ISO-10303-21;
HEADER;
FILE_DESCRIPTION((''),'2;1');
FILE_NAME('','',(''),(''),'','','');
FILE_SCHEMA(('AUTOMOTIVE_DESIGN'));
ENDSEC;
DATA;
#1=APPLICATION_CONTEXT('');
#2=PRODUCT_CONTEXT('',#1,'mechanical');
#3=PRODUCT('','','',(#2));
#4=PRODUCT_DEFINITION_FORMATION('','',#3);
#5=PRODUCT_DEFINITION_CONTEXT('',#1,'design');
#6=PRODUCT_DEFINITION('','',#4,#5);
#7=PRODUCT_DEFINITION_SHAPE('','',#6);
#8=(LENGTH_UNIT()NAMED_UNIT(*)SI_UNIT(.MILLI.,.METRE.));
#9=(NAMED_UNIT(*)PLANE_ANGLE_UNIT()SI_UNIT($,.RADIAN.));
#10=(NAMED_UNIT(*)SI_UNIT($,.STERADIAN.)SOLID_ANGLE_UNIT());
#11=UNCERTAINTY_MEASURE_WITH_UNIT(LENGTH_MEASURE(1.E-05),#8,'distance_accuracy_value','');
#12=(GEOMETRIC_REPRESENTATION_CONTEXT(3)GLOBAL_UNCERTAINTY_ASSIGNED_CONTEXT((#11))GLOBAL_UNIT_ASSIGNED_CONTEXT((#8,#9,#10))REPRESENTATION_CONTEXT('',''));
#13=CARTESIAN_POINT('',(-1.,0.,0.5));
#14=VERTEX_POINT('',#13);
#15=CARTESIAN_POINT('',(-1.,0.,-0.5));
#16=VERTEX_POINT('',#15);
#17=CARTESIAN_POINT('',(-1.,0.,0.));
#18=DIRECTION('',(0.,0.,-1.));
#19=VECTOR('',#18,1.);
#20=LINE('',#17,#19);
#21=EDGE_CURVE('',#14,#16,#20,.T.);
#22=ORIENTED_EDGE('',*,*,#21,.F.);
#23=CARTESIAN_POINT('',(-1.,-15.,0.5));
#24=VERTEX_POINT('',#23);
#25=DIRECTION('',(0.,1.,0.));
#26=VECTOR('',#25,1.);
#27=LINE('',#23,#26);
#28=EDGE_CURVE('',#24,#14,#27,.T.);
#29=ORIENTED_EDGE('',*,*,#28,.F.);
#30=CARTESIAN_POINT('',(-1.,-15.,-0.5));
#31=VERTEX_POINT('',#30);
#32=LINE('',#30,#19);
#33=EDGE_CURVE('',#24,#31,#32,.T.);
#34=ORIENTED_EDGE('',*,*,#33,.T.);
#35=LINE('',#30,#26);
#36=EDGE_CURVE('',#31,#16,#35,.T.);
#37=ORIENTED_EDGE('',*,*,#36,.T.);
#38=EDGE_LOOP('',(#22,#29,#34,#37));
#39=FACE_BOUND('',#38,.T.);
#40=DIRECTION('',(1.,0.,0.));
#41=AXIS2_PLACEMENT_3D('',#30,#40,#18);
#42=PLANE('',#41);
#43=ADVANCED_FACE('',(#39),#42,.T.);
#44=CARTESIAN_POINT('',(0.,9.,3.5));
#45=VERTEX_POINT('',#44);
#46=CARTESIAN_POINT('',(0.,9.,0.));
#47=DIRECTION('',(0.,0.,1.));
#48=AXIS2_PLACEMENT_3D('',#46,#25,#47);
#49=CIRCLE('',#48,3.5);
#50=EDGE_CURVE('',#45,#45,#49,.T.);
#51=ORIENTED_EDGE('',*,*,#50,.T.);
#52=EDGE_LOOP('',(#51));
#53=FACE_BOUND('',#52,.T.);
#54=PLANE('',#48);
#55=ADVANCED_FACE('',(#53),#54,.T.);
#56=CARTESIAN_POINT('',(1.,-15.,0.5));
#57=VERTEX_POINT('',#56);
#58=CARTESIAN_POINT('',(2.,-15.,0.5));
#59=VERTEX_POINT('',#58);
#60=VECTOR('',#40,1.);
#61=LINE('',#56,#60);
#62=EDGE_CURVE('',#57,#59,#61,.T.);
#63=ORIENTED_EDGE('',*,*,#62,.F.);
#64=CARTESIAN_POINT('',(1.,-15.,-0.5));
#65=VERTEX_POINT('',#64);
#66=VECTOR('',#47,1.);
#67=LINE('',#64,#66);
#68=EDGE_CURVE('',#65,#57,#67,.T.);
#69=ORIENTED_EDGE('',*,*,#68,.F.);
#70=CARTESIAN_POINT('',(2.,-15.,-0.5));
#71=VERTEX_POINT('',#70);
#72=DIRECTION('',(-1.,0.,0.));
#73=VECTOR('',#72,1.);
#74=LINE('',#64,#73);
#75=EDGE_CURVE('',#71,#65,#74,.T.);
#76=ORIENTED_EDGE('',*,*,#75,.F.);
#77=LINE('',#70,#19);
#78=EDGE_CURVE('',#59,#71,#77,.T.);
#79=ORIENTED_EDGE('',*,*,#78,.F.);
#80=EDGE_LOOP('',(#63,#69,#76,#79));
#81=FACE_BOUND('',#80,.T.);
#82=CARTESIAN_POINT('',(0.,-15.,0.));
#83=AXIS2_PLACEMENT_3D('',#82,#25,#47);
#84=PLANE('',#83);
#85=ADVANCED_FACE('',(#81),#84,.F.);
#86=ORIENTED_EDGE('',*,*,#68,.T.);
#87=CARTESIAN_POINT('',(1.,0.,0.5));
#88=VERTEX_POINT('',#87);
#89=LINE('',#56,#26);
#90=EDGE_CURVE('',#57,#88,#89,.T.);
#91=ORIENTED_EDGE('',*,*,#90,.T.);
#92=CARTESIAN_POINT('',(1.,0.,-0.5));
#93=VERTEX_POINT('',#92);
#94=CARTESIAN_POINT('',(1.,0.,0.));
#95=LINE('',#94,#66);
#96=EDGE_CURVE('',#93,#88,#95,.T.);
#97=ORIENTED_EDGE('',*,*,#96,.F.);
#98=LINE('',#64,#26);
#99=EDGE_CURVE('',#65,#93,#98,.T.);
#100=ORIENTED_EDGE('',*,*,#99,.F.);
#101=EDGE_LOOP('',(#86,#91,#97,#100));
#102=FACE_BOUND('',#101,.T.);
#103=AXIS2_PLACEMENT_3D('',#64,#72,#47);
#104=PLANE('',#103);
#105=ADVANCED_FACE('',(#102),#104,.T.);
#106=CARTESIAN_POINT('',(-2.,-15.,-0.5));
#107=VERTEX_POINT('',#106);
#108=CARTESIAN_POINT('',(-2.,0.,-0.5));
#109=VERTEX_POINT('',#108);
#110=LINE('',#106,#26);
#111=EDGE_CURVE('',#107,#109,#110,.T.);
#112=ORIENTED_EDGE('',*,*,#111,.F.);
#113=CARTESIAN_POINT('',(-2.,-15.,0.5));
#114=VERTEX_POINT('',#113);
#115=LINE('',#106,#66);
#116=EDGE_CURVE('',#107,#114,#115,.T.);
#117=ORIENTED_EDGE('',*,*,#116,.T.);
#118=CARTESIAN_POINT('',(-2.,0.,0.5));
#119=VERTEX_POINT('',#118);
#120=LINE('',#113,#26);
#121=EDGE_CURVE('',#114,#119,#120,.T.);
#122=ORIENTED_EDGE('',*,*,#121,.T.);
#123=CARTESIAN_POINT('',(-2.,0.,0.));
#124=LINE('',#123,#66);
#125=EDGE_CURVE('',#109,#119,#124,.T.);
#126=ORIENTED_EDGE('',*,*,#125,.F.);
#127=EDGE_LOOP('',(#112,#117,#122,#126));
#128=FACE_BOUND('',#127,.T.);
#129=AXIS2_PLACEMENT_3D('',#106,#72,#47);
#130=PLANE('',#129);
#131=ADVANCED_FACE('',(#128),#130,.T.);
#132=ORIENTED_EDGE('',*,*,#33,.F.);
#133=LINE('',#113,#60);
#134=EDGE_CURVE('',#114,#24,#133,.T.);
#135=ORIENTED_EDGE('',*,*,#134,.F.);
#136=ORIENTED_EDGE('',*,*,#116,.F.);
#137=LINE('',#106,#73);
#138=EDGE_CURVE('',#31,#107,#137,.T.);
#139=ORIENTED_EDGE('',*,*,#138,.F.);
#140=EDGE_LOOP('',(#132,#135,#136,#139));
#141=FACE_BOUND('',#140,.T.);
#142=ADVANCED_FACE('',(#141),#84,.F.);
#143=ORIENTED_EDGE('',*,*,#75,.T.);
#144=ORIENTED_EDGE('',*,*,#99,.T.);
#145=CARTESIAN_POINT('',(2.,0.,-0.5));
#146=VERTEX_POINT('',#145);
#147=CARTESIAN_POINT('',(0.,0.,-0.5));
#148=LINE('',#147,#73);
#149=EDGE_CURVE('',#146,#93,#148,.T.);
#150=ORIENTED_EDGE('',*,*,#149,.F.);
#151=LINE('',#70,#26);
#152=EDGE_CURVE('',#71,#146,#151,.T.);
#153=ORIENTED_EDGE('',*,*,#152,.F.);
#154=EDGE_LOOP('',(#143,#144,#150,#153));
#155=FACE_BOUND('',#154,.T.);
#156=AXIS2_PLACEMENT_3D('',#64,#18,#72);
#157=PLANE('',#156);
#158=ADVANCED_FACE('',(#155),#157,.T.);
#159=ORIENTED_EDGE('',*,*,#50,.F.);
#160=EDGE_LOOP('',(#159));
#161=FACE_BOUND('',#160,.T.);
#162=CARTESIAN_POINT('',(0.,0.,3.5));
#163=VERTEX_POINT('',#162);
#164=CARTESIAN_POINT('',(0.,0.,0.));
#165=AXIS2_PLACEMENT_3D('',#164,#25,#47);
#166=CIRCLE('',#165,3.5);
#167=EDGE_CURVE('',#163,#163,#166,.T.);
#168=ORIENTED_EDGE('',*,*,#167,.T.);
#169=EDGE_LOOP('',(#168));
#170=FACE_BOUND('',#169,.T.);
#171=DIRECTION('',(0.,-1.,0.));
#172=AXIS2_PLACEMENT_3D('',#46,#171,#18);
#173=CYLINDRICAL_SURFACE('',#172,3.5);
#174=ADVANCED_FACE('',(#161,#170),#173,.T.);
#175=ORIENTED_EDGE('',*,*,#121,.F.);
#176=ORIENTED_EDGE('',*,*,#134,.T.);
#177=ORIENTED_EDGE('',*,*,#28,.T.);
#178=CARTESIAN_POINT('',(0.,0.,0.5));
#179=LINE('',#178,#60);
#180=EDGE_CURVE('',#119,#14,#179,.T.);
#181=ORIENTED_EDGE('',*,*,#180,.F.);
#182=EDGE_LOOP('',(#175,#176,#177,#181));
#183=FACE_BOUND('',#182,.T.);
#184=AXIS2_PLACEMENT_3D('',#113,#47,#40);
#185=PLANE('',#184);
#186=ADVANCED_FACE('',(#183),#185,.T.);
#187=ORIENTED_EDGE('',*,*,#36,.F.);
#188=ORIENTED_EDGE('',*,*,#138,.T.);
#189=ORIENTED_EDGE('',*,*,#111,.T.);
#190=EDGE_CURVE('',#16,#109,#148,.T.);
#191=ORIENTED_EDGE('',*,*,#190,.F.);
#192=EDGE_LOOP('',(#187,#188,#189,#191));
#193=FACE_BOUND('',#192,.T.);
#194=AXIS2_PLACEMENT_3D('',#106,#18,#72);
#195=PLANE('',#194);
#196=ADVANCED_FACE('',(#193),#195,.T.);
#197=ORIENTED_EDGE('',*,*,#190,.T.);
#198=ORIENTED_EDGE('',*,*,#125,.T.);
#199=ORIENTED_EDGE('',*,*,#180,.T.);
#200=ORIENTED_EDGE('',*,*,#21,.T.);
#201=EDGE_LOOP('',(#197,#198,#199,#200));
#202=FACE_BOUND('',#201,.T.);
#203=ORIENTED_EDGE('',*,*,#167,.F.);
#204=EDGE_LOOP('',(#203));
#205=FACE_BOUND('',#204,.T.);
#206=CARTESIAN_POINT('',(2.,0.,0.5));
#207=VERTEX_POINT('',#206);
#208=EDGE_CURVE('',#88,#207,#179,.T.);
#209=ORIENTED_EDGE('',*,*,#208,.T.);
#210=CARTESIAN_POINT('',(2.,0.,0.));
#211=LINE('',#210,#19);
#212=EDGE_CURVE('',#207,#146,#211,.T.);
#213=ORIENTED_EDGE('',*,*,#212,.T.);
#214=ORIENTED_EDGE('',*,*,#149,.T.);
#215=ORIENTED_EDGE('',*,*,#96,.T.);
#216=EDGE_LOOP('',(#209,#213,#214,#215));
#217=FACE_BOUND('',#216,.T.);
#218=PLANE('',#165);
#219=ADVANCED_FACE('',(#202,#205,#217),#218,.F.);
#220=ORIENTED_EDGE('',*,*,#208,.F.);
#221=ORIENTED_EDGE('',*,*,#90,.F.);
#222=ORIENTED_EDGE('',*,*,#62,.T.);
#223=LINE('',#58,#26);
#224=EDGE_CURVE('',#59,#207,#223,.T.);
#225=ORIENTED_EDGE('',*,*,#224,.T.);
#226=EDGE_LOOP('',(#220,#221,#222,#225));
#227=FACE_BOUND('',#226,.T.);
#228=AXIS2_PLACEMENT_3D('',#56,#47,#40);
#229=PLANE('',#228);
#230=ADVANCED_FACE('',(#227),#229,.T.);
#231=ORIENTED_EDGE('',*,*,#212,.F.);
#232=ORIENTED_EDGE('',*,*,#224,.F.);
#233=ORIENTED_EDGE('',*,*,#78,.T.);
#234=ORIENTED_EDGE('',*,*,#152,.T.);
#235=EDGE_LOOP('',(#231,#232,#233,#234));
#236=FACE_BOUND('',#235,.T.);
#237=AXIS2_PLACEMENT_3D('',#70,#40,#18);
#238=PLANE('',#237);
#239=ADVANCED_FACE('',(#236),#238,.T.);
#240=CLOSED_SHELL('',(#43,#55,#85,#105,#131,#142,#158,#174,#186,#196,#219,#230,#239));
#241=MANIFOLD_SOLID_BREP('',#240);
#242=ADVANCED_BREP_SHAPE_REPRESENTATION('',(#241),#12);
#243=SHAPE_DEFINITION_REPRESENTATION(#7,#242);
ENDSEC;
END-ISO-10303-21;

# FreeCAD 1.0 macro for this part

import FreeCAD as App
import Part
import Sketcher

V = App.Vector
Q = App.Units.Quantity

doc = App.newDocument("Part")
body = doc.addObject("PartDesign::Body", "Body")

# Sketch on XZ plane
sketch1 = body.newObject("Sketcher::SketchObject", "Sketch")
sketch1.AttachmentSupport = (doc.getObject("XZ_Plane"), [""])
sketch1.MapMode = "FlatFace"
sketch1.addGeometry(Part.Circle(V(0, 0, 0), V(0, 0, 1), 3.5), False)
sketch1.addConstraint(Sketcher.Constraint("Coincident", 0, 3, -1, 1))
sketch1.addConstraint(Sketcher.Constraint("Diameter", 0, Q("7 mm")))
pad1 = body.newObject("PartDesign::Pad", "Pad")
pad1.Profile = sketch1
pad1.Length = 9
pad1.Reversed = True

# Sketch on XZ plane
sketch2 = body.newObject("Sketcher::SketchObject", "Sketch001")
sketch2.AttachmentSupport = (doc.getObject("XZ_Plane"), [""])
sketch2.MapMode = "FlatFace"
sketch2.AttachmentOffset = App.Placement(V(0, 0, -9), App.Rotation())
sketch2.addGeometry(Part.LineSegment(V(-2, -0.5, 0), V(-2, 0.5, 0)), False)
sketch2.addGeometry(Part.LineSegment(V(-2, 0.5, 0), V(-1, 0.5, 0)), False)
sketch2.addGeometry(Part.LineSegment(V(-1, 0.5, 0), V(-1, -0.5, 0)), False)
sketch2.addGeometry(Part.LineSegment(V(-1, -0.5, 0), V(-2, -0.5, 0)), False)
sketch2.addGeometry(Part.LineSegment(V(1, -0.5, 0), V(1, 0.5, 0)), False)
sketch2.addGeometry(Part.LineSegment(V(1, 0.5, 0), V(2, 0.5, 0)), False)
sketch2.addGeometry(Part.LineSegment(V(2, 0.5, 0), V(2, -0.5, 0)), False)
sketch2.addGeometry(Part.LineSegment(V(2, -0.5, 0), V(1, -0.5, 0)), False)
sketch2.addConstraint(Sketcher.Constraint("Coincident", 0, 2, 1, 1))
sketch2.addConstraint(Sketcher.Constraint("Coincident", 1, 2, 2, 1))
sketch2.addConstraint(Sketcher.Constraint("Coincident", 2, 2, 3, 1))
sketch2.addConstraint(Sketcher.Constraint("Coincident", 3, 2, 0, 1))
sketch2.addConstraint(Sketcher.Constraint("Coincident", 4, 2, 5, 1))
sketch2.addConstraint(Sketcher.Constraint("Coincident", 5, 2, 6, 1))
sketch2.addConstraint(Sketcher.Constraint("Coincident", 6, 2, 7, 1))
sketch2.addConstraint(Sketcher.Constraint("Coincident", 7, 2, 4, 1))
sketch2.addConstraint(Sketcher.Constraint("Vertical", 0))
sketch2.addConstraint(Sketcher.Constraint("Horizontal", 1))
sketch2.addConstraint(Sketcher.Constraint("Vertical", 2))
sketch2.addConstraint(Sketcher.Constraint("Horizontal", 3))
sketch2.addConstraint(Sketcher.Constraint("Vertical", 4))
sketch2.addConstraint(Sketcher.Constraint("Horizontal", 5))
sketch2.addConstraint(Sketcher.Constraint("Vertical", 6))
sketch2.addConstraint(Sketcher.Constraint("Horizontal", 7))
sketch2.addConstraint(Sketcher.Constraint("Symmetric", 2, 2, 4, 2, -1, 1))
sketch2.addConstraint(Sketcher.Constraint("Symmetric", 0, 2, 6, 2, -1, 1))
sketch2.addConstraint(Sketcher.Constraint("Horizontal", 1, 2, 4, 2))
sketch2.addConstraint(Sketcher.Constraint("Equal", 7, 0))
sketch2.addConstraint(Sketcher.Constraint("DistanceX", 1, 1, 1, 2, Q("1 mm")))
sketch2.addConstraint(Sketcher.Constraint("DistanceX", 0, 2, -1, 1, Q("2 mm")))
pad2 = body.newObject("PartDesign::Pad", "Pad001")
pad2.Profile = sketch2
pad2.Length = 24

doc.recompute()
